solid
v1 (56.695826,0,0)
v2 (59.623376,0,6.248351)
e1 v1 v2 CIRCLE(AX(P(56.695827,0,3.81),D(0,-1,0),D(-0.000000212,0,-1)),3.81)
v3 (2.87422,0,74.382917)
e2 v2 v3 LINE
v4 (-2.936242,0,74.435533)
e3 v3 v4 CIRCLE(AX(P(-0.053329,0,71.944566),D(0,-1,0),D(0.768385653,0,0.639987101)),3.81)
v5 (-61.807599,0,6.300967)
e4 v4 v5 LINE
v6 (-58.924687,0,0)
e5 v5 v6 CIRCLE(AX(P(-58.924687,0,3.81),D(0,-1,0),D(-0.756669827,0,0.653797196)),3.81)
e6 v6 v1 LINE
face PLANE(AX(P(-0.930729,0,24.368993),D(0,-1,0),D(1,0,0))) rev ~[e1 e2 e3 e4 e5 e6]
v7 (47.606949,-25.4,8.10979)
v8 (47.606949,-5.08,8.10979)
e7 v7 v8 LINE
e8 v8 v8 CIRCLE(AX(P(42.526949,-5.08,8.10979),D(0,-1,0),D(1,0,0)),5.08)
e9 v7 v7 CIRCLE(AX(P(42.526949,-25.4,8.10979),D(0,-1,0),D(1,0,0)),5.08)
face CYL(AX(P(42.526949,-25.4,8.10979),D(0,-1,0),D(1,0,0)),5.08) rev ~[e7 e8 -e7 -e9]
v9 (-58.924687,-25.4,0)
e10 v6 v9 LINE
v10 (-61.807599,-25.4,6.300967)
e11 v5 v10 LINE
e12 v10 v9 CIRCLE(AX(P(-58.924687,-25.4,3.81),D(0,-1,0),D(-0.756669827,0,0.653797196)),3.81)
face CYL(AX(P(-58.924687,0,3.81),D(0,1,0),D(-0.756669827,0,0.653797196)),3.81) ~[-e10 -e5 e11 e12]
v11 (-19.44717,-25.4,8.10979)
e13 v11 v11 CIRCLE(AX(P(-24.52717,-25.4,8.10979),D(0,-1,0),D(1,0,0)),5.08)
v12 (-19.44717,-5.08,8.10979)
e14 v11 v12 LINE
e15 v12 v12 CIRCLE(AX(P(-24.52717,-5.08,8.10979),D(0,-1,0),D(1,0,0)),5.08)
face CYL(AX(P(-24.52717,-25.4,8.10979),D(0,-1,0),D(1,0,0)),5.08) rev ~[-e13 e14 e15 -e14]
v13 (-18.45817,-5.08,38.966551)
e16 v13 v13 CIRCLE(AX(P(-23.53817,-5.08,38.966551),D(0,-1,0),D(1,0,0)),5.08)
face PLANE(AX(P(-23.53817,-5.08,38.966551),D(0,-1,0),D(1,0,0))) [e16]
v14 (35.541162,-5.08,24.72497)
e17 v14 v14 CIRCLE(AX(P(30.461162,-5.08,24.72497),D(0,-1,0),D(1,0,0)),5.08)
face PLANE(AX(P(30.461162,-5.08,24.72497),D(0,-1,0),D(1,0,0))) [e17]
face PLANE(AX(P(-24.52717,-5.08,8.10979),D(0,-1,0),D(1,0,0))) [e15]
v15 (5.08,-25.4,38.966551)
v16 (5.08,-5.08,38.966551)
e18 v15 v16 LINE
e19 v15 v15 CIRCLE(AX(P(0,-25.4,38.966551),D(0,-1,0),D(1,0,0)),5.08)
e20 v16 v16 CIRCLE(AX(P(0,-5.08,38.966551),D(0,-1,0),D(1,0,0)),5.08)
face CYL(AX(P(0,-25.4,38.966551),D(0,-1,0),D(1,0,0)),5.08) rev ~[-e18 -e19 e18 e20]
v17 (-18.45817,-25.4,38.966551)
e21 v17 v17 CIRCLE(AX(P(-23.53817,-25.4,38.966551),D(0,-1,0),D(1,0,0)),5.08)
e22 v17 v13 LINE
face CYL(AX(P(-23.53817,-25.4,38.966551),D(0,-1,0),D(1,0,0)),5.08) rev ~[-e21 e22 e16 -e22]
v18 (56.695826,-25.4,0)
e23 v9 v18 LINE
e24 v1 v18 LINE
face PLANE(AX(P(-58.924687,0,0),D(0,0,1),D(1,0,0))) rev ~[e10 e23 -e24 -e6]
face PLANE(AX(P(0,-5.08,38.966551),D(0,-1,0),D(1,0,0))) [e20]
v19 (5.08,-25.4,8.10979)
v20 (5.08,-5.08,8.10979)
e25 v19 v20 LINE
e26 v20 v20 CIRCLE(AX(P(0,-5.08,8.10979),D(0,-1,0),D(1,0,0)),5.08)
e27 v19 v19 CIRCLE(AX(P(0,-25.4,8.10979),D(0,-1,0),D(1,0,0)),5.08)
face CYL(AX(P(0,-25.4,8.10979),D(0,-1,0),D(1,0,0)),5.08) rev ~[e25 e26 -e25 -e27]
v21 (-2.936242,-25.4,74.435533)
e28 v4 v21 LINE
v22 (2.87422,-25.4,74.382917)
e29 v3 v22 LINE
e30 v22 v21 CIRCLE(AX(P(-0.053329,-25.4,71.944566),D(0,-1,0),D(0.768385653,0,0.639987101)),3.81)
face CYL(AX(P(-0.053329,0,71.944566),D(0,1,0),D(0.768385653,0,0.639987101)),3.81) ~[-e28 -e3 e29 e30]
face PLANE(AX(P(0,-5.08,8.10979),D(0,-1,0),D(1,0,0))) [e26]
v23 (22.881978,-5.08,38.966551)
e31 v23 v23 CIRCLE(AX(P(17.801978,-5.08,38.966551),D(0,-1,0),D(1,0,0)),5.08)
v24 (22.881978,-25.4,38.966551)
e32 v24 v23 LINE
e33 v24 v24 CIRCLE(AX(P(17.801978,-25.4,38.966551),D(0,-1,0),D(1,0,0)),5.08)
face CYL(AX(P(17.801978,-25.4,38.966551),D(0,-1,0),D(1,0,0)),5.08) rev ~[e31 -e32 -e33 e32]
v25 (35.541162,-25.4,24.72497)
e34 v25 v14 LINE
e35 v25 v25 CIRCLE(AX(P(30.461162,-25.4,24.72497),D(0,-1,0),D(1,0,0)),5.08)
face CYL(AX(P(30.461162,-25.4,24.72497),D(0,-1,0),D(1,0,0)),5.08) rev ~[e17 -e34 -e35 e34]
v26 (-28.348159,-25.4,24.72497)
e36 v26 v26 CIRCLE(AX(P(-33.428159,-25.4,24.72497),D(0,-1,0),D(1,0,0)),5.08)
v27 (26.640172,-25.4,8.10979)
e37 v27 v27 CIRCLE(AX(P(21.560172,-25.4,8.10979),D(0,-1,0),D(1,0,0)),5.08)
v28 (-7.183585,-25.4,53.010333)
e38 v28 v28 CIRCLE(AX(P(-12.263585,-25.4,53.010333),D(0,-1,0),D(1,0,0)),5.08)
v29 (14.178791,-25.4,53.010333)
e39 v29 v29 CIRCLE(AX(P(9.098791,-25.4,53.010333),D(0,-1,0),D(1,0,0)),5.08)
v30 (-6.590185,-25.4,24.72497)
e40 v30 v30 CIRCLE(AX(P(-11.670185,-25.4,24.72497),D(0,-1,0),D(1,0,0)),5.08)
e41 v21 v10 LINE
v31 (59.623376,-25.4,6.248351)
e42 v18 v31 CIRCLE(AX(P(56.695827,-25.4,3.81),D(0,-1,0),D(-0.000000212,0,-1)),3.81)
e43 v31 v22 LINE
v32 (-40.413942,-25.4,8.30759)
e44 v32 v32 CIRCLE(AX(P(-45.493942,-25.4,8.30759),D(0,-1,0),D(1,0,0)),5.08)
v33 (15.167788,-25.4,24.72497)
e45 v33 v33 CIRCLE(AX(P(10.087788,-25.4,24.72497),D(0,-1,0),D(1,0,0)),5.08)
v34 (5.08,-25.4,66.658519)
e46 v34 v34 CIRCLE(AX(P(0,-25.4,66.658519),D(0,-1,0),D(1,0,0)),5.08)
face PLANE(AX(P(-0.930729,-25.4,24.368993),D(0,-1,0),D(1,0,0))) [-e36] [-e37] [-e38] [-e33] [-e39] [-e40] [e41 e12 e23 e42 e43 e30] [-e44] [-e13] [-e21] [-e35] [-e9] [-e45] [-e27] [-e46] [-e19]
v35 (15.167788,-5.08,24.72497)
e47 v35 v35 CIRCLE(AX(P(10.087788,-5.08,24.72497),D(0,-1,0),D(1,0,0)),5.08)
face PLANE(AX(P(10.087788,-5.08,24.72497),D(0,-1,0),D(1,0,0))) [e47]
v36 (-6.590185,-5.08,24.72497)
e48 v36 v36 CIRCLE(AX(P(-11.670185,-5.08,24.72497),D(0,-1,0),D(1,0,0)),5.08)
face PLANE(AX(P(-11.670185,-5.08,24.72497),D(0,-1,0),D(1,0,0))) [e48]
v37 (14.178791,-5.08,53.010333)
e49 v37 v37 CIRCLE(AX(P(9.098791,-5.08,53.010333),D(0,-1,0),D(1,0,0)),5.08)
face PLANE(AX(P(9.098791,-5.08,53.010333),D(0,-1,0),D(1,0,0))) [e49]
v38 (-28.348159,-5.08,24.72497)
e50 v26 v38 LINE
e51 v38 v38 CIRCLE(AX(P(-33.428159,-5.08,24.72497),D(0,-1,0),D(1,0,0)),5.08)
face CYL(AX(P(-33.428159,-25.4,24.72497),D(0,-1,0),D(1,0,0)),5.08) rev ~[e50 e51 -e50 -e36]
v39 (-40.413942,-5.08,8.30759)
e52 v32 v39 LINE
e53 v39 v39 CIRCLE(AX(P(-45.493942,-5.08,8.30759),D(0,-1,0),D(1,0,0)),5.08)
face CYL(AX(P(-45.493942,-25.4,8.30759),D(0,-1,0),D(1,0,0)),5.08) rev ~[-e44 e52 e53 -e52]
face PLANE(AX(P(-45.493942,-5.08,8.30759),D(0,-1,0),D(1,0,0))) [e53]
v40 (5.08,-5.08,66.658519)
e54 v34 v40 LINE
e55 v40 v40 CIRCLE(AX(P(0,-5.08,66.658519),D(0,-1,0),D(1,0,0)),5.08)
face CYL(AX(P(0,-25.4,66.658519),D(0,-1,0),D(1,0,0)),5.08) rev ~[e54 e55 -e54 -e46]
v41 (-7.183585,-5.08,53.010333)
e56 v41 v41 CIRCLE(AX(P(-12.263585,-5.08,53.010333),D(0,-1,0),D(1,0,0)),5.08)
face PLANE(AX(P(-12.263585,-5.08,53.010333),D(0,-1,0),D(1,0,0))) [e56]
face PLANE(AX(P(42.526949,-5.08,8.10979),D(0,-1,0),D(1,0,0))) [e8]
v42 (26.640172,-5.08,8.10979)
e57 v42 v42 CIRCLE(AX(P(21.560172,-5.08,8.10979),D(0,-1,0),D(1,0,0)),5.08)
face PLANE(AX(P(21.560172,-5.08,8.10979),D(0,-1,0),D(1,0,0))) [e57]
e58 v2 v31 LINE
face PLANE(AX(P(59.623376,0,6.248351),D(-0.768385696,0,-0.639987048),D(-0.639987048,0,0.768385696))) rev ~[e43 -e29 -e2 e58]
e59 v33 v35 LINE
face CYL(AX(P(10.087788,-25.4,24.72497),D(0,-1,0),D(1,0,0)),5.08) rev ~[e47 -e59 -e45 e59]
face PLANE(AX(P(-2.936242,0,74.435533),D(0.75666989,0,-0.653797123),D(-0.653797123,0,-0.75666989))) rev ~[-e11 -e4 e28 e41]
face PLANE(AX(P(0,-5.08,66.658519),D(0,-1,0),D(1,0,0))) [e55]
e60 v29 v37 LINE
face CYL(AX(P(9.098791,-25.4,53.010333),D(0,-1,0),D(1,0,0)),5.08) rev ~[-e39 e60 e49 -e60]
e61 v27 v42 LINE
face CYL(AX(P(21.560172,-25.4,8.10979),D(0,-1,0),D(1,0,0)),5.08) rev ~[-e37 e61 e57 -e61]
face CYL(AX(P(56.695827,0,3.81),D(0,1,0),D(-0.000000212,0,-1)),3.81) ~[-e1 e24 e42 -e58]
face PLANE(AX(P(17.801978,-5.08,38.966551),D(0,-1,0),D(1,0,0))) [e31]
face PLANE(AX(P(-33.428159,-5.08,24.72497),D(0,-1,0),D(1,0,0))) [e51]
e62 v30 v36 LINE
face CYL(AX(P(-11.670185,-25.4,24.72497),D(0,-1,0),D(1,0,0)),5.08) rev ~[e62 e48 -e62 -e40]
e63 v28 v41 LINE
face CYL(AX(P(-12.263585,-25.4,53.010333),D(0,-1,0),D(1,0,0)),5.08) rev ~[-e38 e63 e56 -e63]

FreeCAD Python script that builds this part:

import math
import FreeCAD as App
import Part
import Sketcher
from FreeCAD import Vector
Q = App.Units.Quantity

doc = App.newDocument("Part")
body = doc.addObject("PartDesign::Body", "Body")

sketch1 = doc.addObject("Sketcher::SketchObject", "Sketch")
body.addObject(sketch1)
sketch1.AttachmentSupport = (doc.XZ_Plane, [""])
sketch1.MapMode = "FlatFace"
sketch1.addGeometry([
    Part.ArcOfCircle(Part.Circle(Vector(-0.053329, 71.944566, 0), Vector(0, 0, 1), 3.81), math.radians(39.790858), math.radians(139.171499)),
    Part.LineSegment(Vector(-2.936242, 74.435533, 0), Vector(-61.807599, 6.300967, 0)),
    Part.ArcOfCircle(Part.Circle(Vector(-58.924687, 3.81, 0), Vector(0, 0, 1), 3.81), math.radians(139.17149), math.radians(270.000002)),
    Part.LineSegment(Vector(-58.924687, 0, 0), Vector(56.695826, 0, 0)),
    Part.ArcOfCircle(Part.Circle(Vector(56.695827, 3.81, 0), Vector(0, 0, 1), 3.81), math.radians(-90.000012), math.radians(39.790861)),
    Part.LineSegment(Vector(59.623376, 6.248351, 0), Vector(2.87422, 74.382917, 0)),
], False)
sketch1.addConstraint([
    Sketcher.Constraint("Tangent", 0, 2, 1, 1),
    Sketcher.Constraint("Tangent", 1, 2, 2, 1),
    Sketcher.Constraint("Tangent", 2, 2, 3, 1),
    Sketcher.Constraint("Tangent", 3, 2, 4, 1),
    Sketcher.Constraint("Tangent", 4, 2, 5, 1),
    Sketcher.Constraint("Tangent", 5, 2, 0, 1),
    Sketcher.Constraint("Horizontal", 3),
    Sketcher.Constraint("Equal", 0, 2),
    Sketcher.Constraint("Equal", 2, 4),
    Sketcher.Constraint("PointOnObject", 2, 2, -1),
    Sketcher.Constraint("Radius", 0, Q("0.15 in")),
    Sketcher.Constraint("DistanceX", 0, 2, -1, 1, Q("0.1156001 in")),
    Sketcher.Constraint("Distance", 1, Q("90.045298 mm")),
    Sketcher.Constraint("DistanceX", 1, 2, -1, 1, Q("61.807599 mm")),
    Sketcher.Constraint("Distance", 5, Q("88.672351 mm")),
])
pad1 = doc.addObject("PartDesign::Pad", "Pad")
body.addObject(pad1)
pad1.Profile = sketch1
pad1.Length = Q("1 in")

sketch2 = doc.addObject("Sketcher::SketchObject", "Sketch001")
body.addObject(sketch2)
sketch2.AttachmentSupport = (doc.XZ_Plane, [""])
sketch2.MapMode = "FlatFace"
sketch2.AttachmentOffset = App.Placement(Vector(0, 0, 1 * 25.4), App.Rotation())
sketch2.addGeometry([
    Part.Circle(Vector(-45.493942, 8.30759, 0), Vector(0, 0, 1), 5.08),
    Part.Circle(Vector(-24.52717, 8.10979, 0), Vector(0, 0, 1), 5.08),
    Part.Circle(Vector(-33.428159, 24.72497, 0), Vector(0, 0, 1), 5.08),
    Part.Circle(Vector(-11.670185, 24.72497, 0), Vector(0, 0, 1), 5.08),
    Part.Circle(Vector(0, 8.10979, 0), Vector(0, 0, 1), 5.08),
    Part.Circle(Vector(21.560172, 8.10979, 0), Vector(0, 0, 1), 5.08),
    Part.Circle(Vector(42.526949, 8.10979, 0), Vector(0, 0, 1), 5.08),
    Part.Circle(Vector(30.461162, 24.72497, 0), Vector(0, 0, 1), 5.08),
    Part.Circle(Vector(10.087788, 24.72497, 0), Vector(0, 0, 1), 5.08),
    Part.Circle(Vector(0, 38.966551, 0), Vector(0, 0, 1), 5.08),
    Part.Circle(Vector(-23.53817, 38.966551, 0), Vector(0, 0, 1), 5.08),
    Part.Circle(Vector(0, 66.658519, 0), Vector(0, 0, 1), 5.08),
    Part.Circle(Vector(-12.263585, 53.010333, 0), Vector(0, 0, 1), 5.08),
    Part.Circle(Vector(9.098791, 53.010333, 0), Vector(0, 0, 1), 5.08),
    Part.Circle(Vector(17.801978, 38.966551, 0), Vector(0, 0, 1), 5.08),
], False)
sketch2.addConstraint([
    Sketcher.Constraint("Equal", 0, 1),
    Sketcher.Constraint("Equal", 1, 2),
    Sketcher.Constraint("Equal", 2, 3),
    Sketcher.Constraint("Equal", 3, 4),
    Sketcher.Constraint("Equal", 4, 5),
    Sketcher.Constraint("Equal", 5, 6),
    Sketcher.Constraint("Equal", 6, 7),
    Sketcher.Constraint("Equal", 7, 8),
    Sketcher.Constraint("Equal", 8, 9),
    Sketcher.Constraint("Equal", 9, 10),
    Sketcher.Constraint("Equal", 10, 11),
    Sketcher.Constraint("Equal", 11, 12),
    Sketcher.Constraint("Equal", 12, 13),
    Sketcher.Constraint("Equal", 13, 14),
    Sketcher.Constraint("PointOnObject", 4, 3, -2),
    Sketcher.Constraint("PointOnObject", 9, 3, -2),
    Sketcher.Constraint("PointOnObject", 11, 3, -2),
    Sketcher.Constraint("Horizontal", 2, 3, 3, 3),
    Sketcher.Constraint("Horizontal", 1, 3, 4, 3),
    Sketcher.Constraint("Horizontal", 4, 3, 5, 3),
    Sketcher.Constraint("Horizontal", 5, 3, 6, 3),
    Sketcher.Constraint("Horizontal", 3, 3, 7, 3),
    Sketcher.Constraint("Horizontal", 7, 3, 8, 3),
    Sketcher.Constraint("Horizontal", 9, 3, 10, 3),
    Sketcher.Constraint("Horizontal", 12, 3, 13, 3),
    Sketcher.Constraint("Horizontal", 10, 3, 14, 3),
    Sketcher.Constraint("Diameter", 0, Q("0.4 in")),
    Sketcher.Constraint("DistanceX", 0, 3, -1, 1, Q("1.7911001 in")),
    Sketcher.Constraint("DistanceY", 1, 3, 0, 3, Q("0.1978 mm")),
    Sketcher.Constraint("DistanceX", 1, 3, 10, 3, Q("0.989 mm")),
    Sketcher.Constraint("DistanceX", 12, 3, 3, 3, Q("0.5934 mm")),
    Sketcher.Constraint("DistanceY", -1, 1, 0, 3, Q("8.30759 mm")),
    Sketcher.Constraint("DistanceX", 1, 3, -1, 1, Q("24.52717 mm")),
    Sketcher.Constraint("DistanceX", 2, 3, -1, 1, Q("33.428159 mm")),
    Sketcher.Constraint("DistanceY", -1, 1, 2, 3, Q("24.72497 mm")),
    Sketcher.Constraint("DistanceX", -1, 1, 6, 3, Q("42.526949 mm")),
    Sketcher.Constraint("DistanceY", -1, 1, 9, 3, Q("38.966551 mm")),
    Sketcher.Constraint("DistanceY", -1, 1, 11, 3, Q("66.658519 mm")),
    Sketcher.Constraint("DistanceX", -1, 1, 13, 3, Q("9.098791 mm")),
    Sketcher.Constraint("DistanceX", 2, 3, 5, 3, Q("54.988331 mm")),
    Sketcher.Constraint("DistanceX", 5, 3, 7, 3, Q("8.90099 mm")),
    Sketcher.Constraint("DistanceX", 8, 3, 6, 3, Q("32.439161 mm")),
    Sketcher.Constraint("DistanceX", 8, 3, 14, 3, Q("7.71419 mm")),
    Sketcher.Constraint("DistanceX", 3, 3, -1, 1, Q("11.670185 mm")),
    Sketcher.Constraint("DistanceY", -1, 1, 12, 3, Q("53.010333 mm")),
])
pocket1 = doc.addObject("PartDesign::Pocket", "Pocket")
body.addObject(pocket1)
pocket1.Profile = sketch2
pocket1.Length = Q("0.8 in")

doc.recompute()
